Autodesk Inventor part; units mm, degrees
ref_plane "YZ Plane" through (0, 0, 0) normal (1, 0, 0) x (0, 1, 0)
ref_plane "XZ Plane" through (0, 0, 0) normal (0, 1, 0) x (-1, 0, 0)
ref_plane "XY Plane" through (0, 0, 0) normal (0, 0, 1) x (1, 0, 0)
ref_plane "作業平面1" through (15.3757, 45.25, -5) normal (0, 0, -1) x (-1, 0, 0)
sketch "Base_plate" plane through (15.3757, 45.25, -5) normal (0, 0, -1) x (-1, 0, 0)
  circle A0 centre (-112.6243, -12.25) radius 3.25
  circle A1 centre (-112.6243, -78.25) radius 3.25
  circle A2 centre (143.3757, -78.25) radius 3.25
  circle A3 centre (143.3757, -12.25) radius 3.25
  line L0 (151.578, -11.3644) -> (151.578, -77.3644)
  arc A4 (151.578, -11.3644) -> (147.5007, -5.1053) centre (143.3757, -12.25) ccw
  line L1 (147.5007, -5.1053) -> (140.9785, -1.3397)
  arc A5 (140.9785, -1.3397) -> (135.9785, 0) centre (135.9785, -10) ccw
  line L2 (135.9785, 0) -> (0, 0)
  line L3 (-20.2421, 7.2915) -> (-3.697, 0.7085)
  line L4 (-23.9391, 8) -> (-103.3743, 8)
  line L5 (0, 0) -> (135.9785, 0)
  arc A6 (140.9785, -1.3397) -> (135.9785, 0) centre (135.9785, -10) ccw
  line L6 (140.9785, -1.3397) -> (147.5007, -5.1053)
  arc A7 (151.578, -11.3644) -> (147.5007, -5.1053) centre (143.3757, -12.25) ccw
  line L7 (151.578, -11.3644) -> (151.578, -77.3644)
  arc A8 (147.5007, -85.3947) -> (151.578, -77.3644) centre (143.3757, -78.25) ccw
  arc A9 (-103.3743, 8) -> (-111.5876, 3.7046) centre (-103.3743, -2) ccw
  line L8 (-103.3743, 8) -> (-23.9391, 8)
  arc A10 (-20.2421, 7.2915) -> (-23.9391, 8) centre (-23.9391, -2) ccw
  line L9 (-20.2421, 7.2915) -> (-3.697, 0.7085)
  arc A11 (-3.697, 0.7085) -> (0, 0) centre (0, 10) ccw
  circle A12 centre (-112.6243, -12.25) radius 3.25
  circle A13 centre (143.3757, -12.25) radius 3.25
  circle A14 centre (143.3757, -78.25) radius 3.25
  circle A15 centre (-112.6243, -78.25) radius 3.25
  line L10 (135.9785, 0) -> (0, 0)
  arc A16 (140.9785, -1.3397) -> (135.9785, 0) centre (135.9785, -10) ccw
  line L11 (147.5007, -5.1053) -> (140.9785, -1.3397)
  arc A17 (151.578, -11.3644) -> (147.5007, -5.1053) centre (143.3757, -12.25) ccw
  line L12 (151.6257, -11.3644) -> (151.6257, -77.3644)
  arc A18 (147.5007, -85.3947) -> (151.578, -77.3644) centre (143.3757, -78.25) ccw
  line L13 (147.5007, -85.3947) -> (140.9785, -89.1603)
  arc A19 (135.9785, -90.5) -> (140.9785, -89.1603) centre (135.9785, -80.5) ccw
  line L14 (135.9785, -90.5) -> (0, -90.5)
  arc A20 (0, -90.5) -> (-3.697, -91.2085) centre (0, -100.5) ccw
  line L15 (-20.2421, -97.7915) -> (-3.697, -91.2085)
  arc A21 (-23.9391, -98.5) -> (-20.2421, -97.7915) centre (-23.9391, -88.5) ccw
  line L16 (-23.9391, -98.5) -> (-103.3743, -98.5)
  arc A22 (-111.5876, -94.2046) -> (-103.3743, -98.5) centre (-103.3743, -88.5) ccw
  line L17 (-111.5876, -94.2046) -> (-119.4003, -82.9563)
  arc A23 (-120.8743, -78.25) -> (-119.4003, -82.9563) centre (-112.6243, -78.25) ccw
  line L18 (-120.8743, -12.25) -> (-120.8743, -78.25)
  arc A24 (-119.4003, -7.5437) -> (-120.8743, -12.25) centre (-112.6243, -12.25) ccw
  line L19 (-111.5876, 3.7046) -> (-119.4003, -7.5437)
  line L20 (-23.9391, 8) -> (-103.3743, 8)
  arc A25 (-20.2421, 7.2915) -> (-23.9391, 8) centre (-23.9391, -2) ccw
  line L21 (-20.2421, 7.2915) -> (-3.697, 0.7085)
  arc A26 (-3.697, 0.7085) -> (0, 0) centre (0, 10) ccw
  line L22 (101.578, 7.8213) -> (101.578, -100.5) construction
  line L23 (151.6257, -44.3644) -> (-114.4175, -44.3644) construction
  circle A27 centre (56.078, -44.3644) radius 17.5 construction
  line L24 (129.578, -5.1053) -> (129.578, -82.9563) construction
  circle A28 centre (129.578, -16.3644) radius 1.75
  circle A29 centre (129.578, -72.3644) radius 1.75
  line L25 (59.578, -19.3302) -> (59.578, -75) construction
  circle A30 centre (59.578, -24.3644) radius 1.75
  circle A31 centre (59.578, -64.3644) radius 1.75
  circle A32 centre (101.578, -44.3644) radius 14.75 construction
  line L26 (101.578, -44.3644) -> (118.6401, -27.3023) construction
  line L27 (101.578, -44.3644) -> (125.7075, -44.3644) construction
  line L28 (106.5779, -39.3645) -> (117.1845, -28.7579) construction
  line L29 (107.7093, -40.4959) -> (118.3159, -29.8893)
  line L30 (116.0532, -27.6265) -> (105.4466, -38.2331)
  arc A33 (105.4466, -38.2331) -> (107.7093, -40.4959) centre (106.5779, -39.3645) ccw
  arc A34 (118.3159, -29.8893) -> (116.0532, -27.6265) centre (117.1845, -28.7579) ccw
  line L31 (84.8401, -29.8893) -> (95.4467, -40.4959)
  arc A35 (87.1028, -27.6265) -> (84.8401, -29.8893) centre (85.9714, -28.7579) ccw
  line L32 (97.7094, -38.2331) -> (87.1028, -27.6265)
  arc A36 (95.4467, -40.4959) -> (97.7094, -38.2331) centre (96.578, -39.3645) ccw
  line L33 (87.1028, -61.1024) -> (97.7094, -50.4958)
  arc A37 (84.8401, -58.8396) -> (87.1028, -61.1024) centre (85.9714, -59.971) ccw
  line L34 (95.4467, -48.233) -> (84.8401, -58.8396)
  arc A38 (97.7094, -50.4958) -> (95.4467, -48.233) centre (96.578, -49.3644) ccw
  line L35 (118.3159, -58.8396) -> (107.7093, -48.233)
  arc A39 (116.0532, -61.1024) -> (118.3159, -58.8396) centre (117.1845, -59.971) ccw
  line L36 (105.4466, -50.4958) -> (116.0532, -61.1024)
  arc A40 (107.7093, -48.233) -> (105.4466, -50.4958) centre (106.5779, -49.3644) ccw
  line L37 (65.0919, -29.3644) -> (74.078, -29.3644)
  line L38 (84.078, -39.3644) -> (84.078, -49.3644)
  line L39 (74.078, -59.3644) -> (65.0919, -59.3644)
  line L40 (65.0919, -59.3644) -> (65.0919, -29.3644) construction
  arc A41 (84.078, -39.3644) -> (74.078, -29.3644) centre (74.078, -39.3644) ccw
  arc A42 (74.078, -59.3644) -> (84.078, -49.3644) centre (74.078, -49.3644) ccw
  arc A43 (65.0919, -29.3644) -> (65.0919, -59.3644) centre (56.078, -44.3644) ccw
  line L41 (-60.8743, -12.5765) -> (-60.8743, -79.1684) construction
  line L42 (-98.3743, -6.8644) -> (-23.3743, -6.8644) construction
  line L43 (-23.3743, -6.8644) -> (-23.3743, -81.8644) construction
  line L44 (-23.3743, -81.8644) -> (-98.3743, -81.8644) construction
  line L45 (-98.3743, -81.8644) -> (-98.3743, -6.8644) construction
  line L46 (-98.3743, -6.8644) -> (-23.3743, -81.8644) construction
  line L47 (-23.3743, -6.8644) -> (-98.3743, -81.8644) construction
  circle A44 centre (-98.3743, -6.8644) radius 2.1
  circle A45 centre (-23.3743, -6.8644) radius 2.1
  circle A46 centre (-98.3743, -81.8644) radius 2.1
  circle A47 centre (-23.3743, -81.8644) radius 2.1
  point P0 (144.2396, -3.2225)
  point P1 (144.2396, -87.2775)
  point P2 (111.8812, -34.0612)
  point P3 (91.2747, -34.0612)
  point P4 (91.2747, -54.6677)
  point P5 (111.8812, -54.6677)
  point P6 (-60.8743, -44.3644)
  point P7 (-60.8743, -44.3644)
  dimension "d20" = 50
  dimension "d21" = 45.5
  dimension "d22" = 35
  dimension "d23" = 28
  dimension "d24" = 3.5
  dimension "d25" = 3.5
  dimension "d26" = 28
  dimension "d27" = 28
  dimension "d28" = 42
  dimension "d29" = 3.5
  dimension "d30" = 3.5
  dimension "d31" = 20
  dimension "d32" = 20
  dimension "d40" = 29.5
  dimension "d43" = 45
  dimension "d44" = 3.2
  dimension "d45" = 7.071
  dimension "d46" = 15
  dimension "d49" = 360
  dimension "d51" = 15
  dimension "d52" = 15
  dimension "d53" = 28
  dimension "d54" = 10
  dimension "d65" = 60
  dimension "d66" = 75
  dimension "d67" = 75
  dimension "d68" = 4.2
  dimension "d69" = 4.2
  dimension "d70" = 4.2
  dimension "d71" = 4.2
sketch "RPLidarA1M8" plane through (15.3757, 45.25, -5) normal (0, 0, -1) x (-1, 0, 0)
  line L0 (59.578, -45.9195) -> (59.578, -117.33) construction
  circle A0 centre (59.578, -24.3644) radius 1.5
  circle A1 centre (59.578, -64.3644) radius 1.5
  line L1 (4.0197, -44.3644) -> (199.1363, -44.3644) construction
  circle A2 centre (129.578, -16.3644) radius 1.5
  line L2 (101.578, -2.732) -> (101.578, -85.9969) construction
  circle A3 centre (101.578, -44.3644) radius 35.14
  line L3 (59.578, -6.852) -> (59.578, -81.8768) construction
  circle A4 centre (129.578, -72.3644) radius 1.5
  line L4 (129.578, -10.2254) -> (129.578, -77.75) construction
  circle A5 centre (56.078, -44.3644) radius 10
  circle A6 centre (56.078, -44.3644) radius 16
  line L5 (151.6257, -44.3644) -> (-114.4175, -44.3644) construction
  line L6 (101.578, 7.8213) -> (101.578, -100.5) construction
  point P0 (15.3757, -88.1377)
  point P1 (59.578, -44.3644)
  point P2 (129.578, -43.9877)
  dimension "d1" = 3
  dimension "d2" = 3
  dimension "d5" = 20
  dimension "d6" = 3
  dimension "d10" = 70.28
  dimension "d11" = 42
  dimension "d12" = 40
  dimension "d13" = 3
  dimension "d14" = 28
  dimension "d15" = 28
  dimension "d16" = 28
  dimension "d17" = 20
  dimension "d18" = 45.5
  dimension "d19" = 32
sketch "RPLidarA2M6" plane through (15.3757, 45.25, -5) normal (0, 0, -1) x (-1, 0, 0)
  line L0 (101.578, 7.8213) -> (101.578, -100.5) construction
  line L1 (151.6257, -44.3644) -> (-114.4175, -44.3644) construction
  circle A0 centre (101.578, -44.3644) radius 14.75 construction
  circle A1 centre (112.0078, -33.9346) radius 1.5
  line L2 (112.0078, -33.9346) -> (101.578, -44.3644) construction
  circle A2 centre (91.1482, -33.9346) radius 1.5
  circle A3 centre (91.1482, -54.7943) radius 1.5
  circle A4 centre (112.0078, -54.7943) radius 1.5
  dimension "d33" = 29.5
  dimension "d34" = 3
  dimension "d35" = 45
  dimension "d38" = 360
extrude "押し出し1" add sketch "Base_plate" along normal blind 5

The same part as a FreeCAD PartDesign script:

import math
import FreeCAD as App
import Part
import Sketcher
Q = App.Units.Quantity

doc = App.newDocument("Part")
body = doc.addObject("PartDesign::Body", "Body")

sketch1 = body.newObject("Sketcher::SketchObject", "Sketch")
sketch1.AttachmentSupport = (doc.getObject("XY_Plane"), [""])
sketch1.MapMode = "FlatFace"
sketch1.AttachmentOffset = App.Placement(App.Vector(0, 0, -5), App.Rotation())
sketch1.addGeometry([
    Part.LineSegment(App.Vector(-136.2, -32.1, 0), App.Vector(-136.2, 33.9, 0)),
    Part.ArcOfCircle(Part.Circle(App.Vector(-128, 33, 0), App.Vector(0, 0, 1), 8.2), math.radians(120), math.radians(174)),
    Part.LineSegment(App.Vector(-132.1, 40.1, 0), App.Vector(-125.6, 43.9, 0)),
    Part.ArcOfCircle(Part.Circle(App.Vector(-120.6, 35.2, 0), App.Vector(0, 0, 1), 10), math.radians(90), math.radians(120)),
    Part.LineSegment(App.Vector(-120.6, 45.2, 0), App.Vector(15.4, 45.2, 0)),
    Part.ArcOfCircle(Part.Circle(App.Vector(15.4, 55.2, 0), App.Vector(0, 0, 1), 10), math.radians(-90), math.radians(-68)),
    Part.LineSegment(App.Vector(19.1, 46, 0), App.Vector(35.6, 52.5, 0)),
    Part.ArcOfCircle(Part.Circle(App.Vector(39.3, 43.2, 0), App.Vector(0, 0, 1), 10), math.radians(90), math.radians(112)),
    Part.LineSegment(App.Vector(39.3, 53.2, 0), App.Vector(118.8, 53.2, 0)),
    Part.ArcOfCircle(Part.Circle(App.Vector(118.8, 43.2, 0), App.Vector(0, 0, 1), 10), math.radians(35), math.radians(90)),
    Part.LineSegment(App.Vector(127, 49, 0), App.Vector(134.8, 37.7, 0)),
    Part.ArcOfCircle(Part.Circle(App.Vector(128, 33, 0), App.Vector(0, 0, 1), 8.3), math.radians(0), math.radians(35)),
    Part.LineSegment(App.Vector(136.2, 33, 0), App.Vector(136.2, -33, 0)),
    Part.ArcOfCircle(Part.Circle(App.Vector(128, -33, 0), App.Vector(0, 0, 1), 8.2), math.radians(-35), math.radians(0)),
    Part.LineSegment(App.Vector(134.8, -37.7, 0), App.Vector(127, -49, 0)),
    Part.ArcOfCircle(Part.Circle(App.Vector(118.8, -43.2, 0), App.Vector(0, 0, 1), 10), math.radians(-90), math.radians(-35)),
    Part.LineSegment(App.Vector(118.8, -53.2, 0), App.Vector(39.3, -53.2, 0)),
    Part.ArcOfCircle(Part.Circle(App.Vector(39.3, -43.2, 0), App.Vector(0, 0, 1), 10), math.radians(-112), math.radians(-90)),
    Part.LineSegment(App.Vector(35.6, -52.5, 0), App.Vector(19.1, -46, 0)),
    Part.ArcOfCircle(Part.Circle(App.Vector(15.4, -55.2, 0), App.Vector(0, 0, 1), 10), math.radians(68), math.radians(90)),
    Part.LineSegment(App.Vector(15.4, -45.2, 0), App.Vector(-120.6, -45.2, 0)),
    Part.ArcOfCircle(Part.Circle(App.Vector(-120.6, -35.2, 0), App.Vector(0, 0, 1), 10), math.radians(-120), math.radians(-90)),
    Part.LineSegment(App.Vector(-125.6, -43.9, 0), App.Vector(-132.1, -40.1, 0)),
    Part.ArcOfCircle(Part.Circle(App.Vector(-128, -33, 0), App.Vector(0, 0, 1), 8.2), math.radians(174), math.radians(240)),
    Part.Circle(App.Vector(113.8, -36.6, 0), App.Vector(0, 0, 1), 2.1),
    Part.Circle(App.Vector(128, -33, 0), App.Vector(0, 0, 1), 3.2),
    Part.Circle(App.Vector(38.8, -36.6, 0), App.Vector(0, 0, 1), 2.1),
    Part.Circle(App.Vector(-114.2, -27.1, 0), App.Vector(0, 0, 1), 1.8),
    Part.Circle(App.Vector(-128, -33, 0), App.Vector(0, 0, 1), 3.2),
    Part.Circle(App.Vector(-44.2, -19.1, 0), App.Vector(0, 0, 1), 1.8),
    Part.LineSegment(App.Vector(-82.3, -5.2, 0), App.Vector(-71.7, -15.9, 0)),
    Part.ArcOfCircle(Part.Circle(App.Vector(-70.6, -14.7, 0), App.Vector(0, 0, 1), 1.6), math.radians(-135), math.radians(45)),
    Part.LineSegment(App.Vector(-69.5, -13.6, 0), App.Vector(-80.1, -3, 0)),
    Part.ArcOfCircle(Part.Circle(App.Vector(-81.2, -4.1, 0), App.Vector(0, 0, 1), 1.6), math.radians(45), math.radians(225)),
    Part.LineSegment(App.Vector(-92.3, -3, 0), App.Vector(-102.9, -13.6, 0)),
    Part.ArcOfCircle(Part.Circle(App.Vector(-101.8, -14.7, 0), App.Vector(0, 0, 1), 1.6), math.radians(135), math.radians(315)),
    Part.LineSegment(App.Vector(-100.7, -15.9, 0), App.Vector(-90.1, -5.2, 0)),
    Part.ArcOfCircle(Part.Circle(App.Vector(-91.2, -4.1, 0), App.Vector(0, 0, 1), 1.6), math.radians(-45), math.radians(135)),
    Part.Circle(App.Vector(128, 33, 0), App.Vector(0, 0, 1), 3.2),
    Part.Circle(App.Vector(113.8, 38.4, 0), App.Vector(0, 0, 1), 2.1),
    Part.Circle(App.Vector(38.8, 38.4, 0), App.Vector(0, 0, 1), 2.1),
    Part.ArcOfCircle(Part.Circle(App.Vector(-40.7, 0.9, 0), App.Vector(0, 0, 1), 17.5), math.radians(-121), math.radians(121)),
    Part.LineSegment(App.Vector(-49.7, 15.9, 0), App.Vector(-58.7, 15.9, 0)),
    Part.ArcOfCircle(Part.Circle(App.Vector(-58.7, 5.9, 0), App.Vector(0, 0, 1), 10), math.radians(90), math.radians(180)),
    Part.LineSegment(App.Vector(-68.7, 5.9, 0), App.Vector(-68.7, -4.1, 0)),
    Part.ArcOfCircle(Part.Circle(App.Vector(-58.7, -4.1, 0), App.Vector(0, 0, 1), 10), math.radians(180), math.radians(270)),
    Part.LineSegment(App.Vector(-58.7, -14.1, 0), App.Vector(-49.7, -14.1, 0)),
    Part.Circle(App.Vector(-44.2, 20.9, 0), App.Vector(0, 0, 1), 1.8),
    Part.LineSegment(App.Vector(-80.1, 4.8, 0), App.Vector(-69.5, 15.4, 0)),
    Part.ArcOfCircle(Part.Circle(App.Vector(-70.6, 16.5, 0), App.Vector(0, 0, 1), 1.6), math.radians(-45), math.radians(135)),
    Part.LineSegment(App.Vector(-71.7, 17.6, 0), App.Vector(-82.3, 7, 0)),
    Part.ArcOfCircle(Part.Circle(App.Vector(-81.2, 5.9, 0), App.Vector(0, 0, 1), 1.6), math.radians(135), math.radians(315)),
    Part.LineSegment(App.Vector(-102.9, 15.4, 0), App.Vector(-92.3, 4.8, 0)),
    Part.ArcOfCircle(Part.Circle(App.Vector(-91.2, 5.9, 0), App.Vector(0, 0, 1), 1.6), math.radians(-135), math.radians(45)),
    Part.LineSegment(App.Vector(-90.1, 7, 0), App.Vector(-100.7, 17.6, 0)),
    Part.ArcOfCircle(Part.Circle(App.Vector(-101.8, 16.5, 0), App.Vector(0, 0, 1), 1.6), math.radians(45), math.radians(225)),
    Part.Circle(App.Vector(-114.2, 28.9, 0), App.Vector(0, 0, 1), 1.8),
    Part.Circle(App.Vector(-128, 33, 0), App.Vector(0, 0, 1), 3.2),
], False)
sketch1.addConstraint([
    Sketcher.Constraint("Coincident", 0, 2, 1, 2),
    Sketcher.Constraint("Tangent", 1, 1, 2, 1),
    Sketcher.Constraint("Tangent", 2, 2, 3, 2),
    Sketcher.Constraint("Tangent", 3, 1, 4, 1),
    Sketcher.Constraint("Tangent", 4, 2, 5, 1),
    Sketcher.Constraint("Tangent", 5, 2, 6, 1),
    Sketcher.Constraint("Tangent", 6, 2, 7, 2),
    Sketcher.Constraint("Tangent", 7, 1, 8, 1),
    Sketcher.Constraint("Tangent", 8, 2, 9, 2),
    Sketcher.Constraint("Tangent", 9, 1, 10, 1),
    Sketcher.Constraint("Tangent", 10, 2, 11, 2),
    Sketcher.Constraint("Tangent", 11, 1, 12, 1),
    Sketcher.Constraint("Tangent", 12, 2, 13, 2),
    Sketcher.Constraint("Tangent", 13, 1, 14, 1),
    Sketcher.Constraint("Tangent", 14, 2, 15, 2),
    Sketcher.Constraint("Tangent", 15, 1, 16, 1),
    Sketcher.Constraint("Tangent", 16, 2, 17, 2),
    Sketcher.Constraint("Tangent", 17, 1, 18, 1),
    Sketcher.Constraint("Tangent", 18, 2, 19, 1),
    Sketcher.Constraint("Tangent", 19, 2, 20, 1),
    Sketcher.Constraint("Tangent", 20, 2, 21, 2),
    Sketcher.Constraint("Tangent", 21, 1, 22, 1),
    Sketcher.Constraint("Tangent", 22, 2, 23, 2),
    Sketcher.Constraint("Coincident", 23, 1, 0, 1),
    Sketcher.Constraint("Tangent", 30, 2, 31, 1),
    Sketcher.Constraint("Tangent", 31, 2, 32, 1),
    Sketcher.Constraint("Tangent", 32, 2, 33, 1),
    Sketcher.Constraint("Tangent", 33, 2, 30, 1),
    Sketcher.Constraint("Tangent", 34, 2, 35, 1),
    Sketcher.Constraint("Tangent", 35, 2, 36, 1),
    Sketcher.Constraint("Tangent", 36, 2, 37, 1),
    Sketcher.Constraint("Tangent", 37, 2, 34, 1),
    Sketcher.Constraint("Coincident", 41, 2, 42, 1),
    Sketcher.Constraint("Tangent", 42, 2, 43, 1),
    Sketcher.Constraint("Tangent", 43, 2, 44, 1),
    Sketcher.Constraint("Tangent", 44, 2, 45, 1),
    Sketcher.Constraint("Tangent", 45, 2, 46, 1),
    Sketcher.Constraint("Coincident", 46, 2, 41, 1),
    Sketcher.Constraint("Tangent", 48, 2, 49, 1),
    Sketcher.Constraint("Tangent", 49, 2, 50, 1),
    Sketcher.Constraint("Tangent", 50, 2, 51, 1),
    Sketcher.Constraint("Tangent", 51, 2, 48, 1),
    Sketcher.Constraint("Tangent", 52, 2, 53, 1),
    Sketcher.Constraint("Tangent", 53, 2, 54, 1),
    Sketcher.Constraint("Tangent", 54, 2, 55, 1),
    Sketcher.Constraint("Tangent", 55, 2, 52, 1),
    Sketcher.Constraint("Vertical", 0),
    Sketcher.Constraint("Horizontal", 4),
    Sketcher.Constraint("Horizontal", 8),
    Sketcher.Constraint("Vertical", 12),
    Sketcher.Constraint("Horizontal", 16),
    Sketcher.Constraint("Horizontal", 20),
    Sketcher.Constraint("Horizontal", 42),
    Sketcher.Constraint("Vertical", 44),
    Sketcher.Constraint("Horizontal", 46),
    Sketcher.Constraint("Coincident", 25, 3, 13, 3),
    Sketcher.Constraint("Coincident", 28, 3, 23, 3),
    Sketcher.Constraint("Coincident", 38, 3, 11, 3),
    Sketcher.Constraint("Coincident", 57, 3, 1, 3),
    Sketcher.Constraint("Equal", 3, 5),
    Sketcher.Constraint("Equal", 5, 7),
    Sketcher.Constraint("Equal", 7, 9),
    Sketcher.Constraint("Equal", 1, 11),
    Sketcher.Constraint("Equal", 11, 13),
    Sketcher.Constraint("Equal", 9, 15),
    Sketcher.Constraint("Equal", 15, 17),
    Sketcher.Constraint("Equal", 17, 19),
    Sketcher.Constraint("Equal", 19, 21),
    Sketcher.Constraint("Equal", 13, 23),
    Sketcher.Constraint("Equal", 24, 26),
    Sketcher.Constraint("Equal", 25, 28),
    Sketcher.Constraint("Equal", 27, 29),
    Sketcher.Constraint("Equal", 31, 33),
    Sketcher.Constraint("Equal", 33, 35),
    Sketcher.Constraint("Equal", 35, 37),
    Sketcher.Constraint("Equal", 28, 38),
    Sketcher.Constraint("Equal", 26, 39),
    Sketcher.Constraint("Equal", 39, 40),
    Sketcher.Constraint("Equal", 21, 43),
    Sketcher.Constraint("Equal", 43, 45),
    Sketcher.Constraint("Equal", 29, 47),
    Sketcher.Constraint("Equal", 37, 49),
    Sketcher.Constraint("Equal", 49, 51),
    Sketcher.Constraint("Equal", 51, 53),
    Sketcher.Constraint("Equal", 53, 55),
    Sketcher.Constraint("Equal", 47, 56),
    Sketcher.Constraint("Equal", 38, 57),
    Sketcher.Constraint("Symmetric", 1, 3, 13, 3, -1, 1),
    Sketcher.Constraint("Symmetric", 11, 3, 23, 3, -1, 1),
    Sketcher.Constraint("Symmetric", 9, 3, 15, 3, -1),
    Sketcher.Constraint("Symmetric", 5, 3, 19, 3, -1),
    Sketcher.Constraint("Symmetric", 2, 2, 21, 1, -1),
    Sketcher.Constraint("Perpendicular", 32, 34),
    Sketcher.Constraint("Parallel", 36, 48),
    Sketcher.Constraint("Perpendicular", 50, 52),
    Sketcher.Constraint("Horizontal", 24, 3, 26, 3),
    Sketcher.Constraint("Horizontal", 31, 3, 35, 3),
    Sketcher.Constraint("Horizontal", 33, 3, 37, 3),
    Sketcher.Constraint("Horizontal", 39, 3, 40, 3),
    Sketcher.Constraint("Horizontal", 37, 3, 45, 3),
    Sketcher.Constraint("Horizontal", 43, 3, 51, 3),
    Sketcher.Constraint("Horizontal", 51, 3, 53, 3),
    Sketcher.Constraint("Horizontal", 49, 3, 55, 3),
    Sketcher.Constraint("Horizontal", 31, 2, 34, 2),
    Sketcher.Constraint("Vertical", 7, 3, 17, 3),
    Sketcher.Constraint("Vertical", 24, 3, 39, 3),
    Sketcher.Constraint("Vertical", 26, 3, 40, 3),
    Sketcher.Constraint("Vertical", 29, 3, 47, 3),
    Sketcher.Constraint("Vertical", 31, 3, 49, 3),
    Sketcher.Constraint("Vertical", 33, 3, 51, 3),
    Sketcher.Constraint("Vertical", 37, 3, 53, 3),
    Sketcher.Constraint("Vertical", 27, 3, 56, 3),
    Sketcher.Constraint("Vertical", 41, 2, 46, 2),
    Sketcher.Constraint("Radius", 3, Q("10 mm")),
    Sketcher.Constraint("Diameter", 24, Q("4.2 mm")),
    Sketcher.Constraint("Diameter", 27, Q("3.5 mm")),
    Sketcher.Constraint("Radius", 31, Q("1.6 mm")),
    Sketcher.Constraint("Radius", 41, Q("17.5 mm")),
    Sketcher.Constraint("DistanceY", 44, 2, 44, 1, Q("10 mm")),
    Sketcher.Constraint("Distance", 30, Q("15 mm")),
    Sketcher.Constraint("Diameter", 25, Q("6.5 mm")),
    Sketcher.Constraint("DistanceY", 0, 1, 0, 2, Q("66 mm")),
    Sketcher.Constraint("Angle", 2, Q("30 deg")),
    Sketcher.Constraint("Radius", 1, Q("8.25 mm")),
    Sketcher.Constraint("DistanceX", 1, 3, -1, 1, Q("128 mm")),
    Sketcher.Constraint("DistanceX", 42, 2, 42, 1, Q("8.986 mm")),
    Sketcher.Constraint("DistanceY", -1, 1, 3, 3, Q("35.25 mm")),
    Sketcher.Constraint("DistanceY", -1, 1, 7, 3, Q("43.25 mm")),
    Sketcher.Constraint("DistanceX", -1, 1, 9, 3, Q("118.75 mm")),
    Sketcher.Constraint("DistanceX", -1, 1, 24, 3, Q("113.75 mm")),
    Sketcher.Constraint("DistanceX", -1, 1, 26, 3, Q("38.75 mm")),
    Sketcher.Constraint("DistanceX", 4, 1, 4, 2, Q("135.9785 mm")),
    Sketcher.Constraint("DistanceX", 8, 1, 8, 2, Q("79.4352 mm")),
    Sketcher.Constraint("DistanceY", 31, 3, -1, 1, Q("14.721 mm")),
    Sketcher.Constraint("DistanceX", 30, 2, -1, 1, Q("71.727 mm")),
    Sketcher.Constraint("DistanceX", 36, 2, -1, 1, Q("90.071 mm")),
    Sketcher.Constraint("DistanceY", 24, 3, -1, 1, Q("36.6144 mm")),
    Sketcher.Constraint("DistanceX", 27, 3, -1, 1, Q("114.2023 mm")),
    Sketcher.Constraint("DistanceY", 27, 3, -1, 1, Q("27.1144 mm")),
    Sketcher.Constraint("DistanceX", 29, 3, -1, 1, Q("44.2023 mm")),
    Sketcher.Constraint("DistanceY", 29, 3, -1, 1, Q("19.1144 mm")),
    Sketcher.Constraint("DistanceY", -1, 1, 39, 3, Q("38.3856 mm")),
    Sketcher.Constraint("DistanceX", 41, 3, -1, 1, Q("40.7023 mm")),
    Sketcher.Constraint("DistanceY", -1, 1, 47, 3, Q("20.8856 mm")),
    Sketcher.Constraint("DistanceY", -1, 1, 56, 3, Q("28.8856 mm")),
    Sketcher.Constraint("DistanceX", 0, 2, -1, 1, Q("136.2023 mm")),
])
pad1 = body.newObject("PartDesign::Pad", "Pad")
pad1.Profile = sketch1
pad1.Length = 5
pad1.Reversed = True

doc.recompute()
